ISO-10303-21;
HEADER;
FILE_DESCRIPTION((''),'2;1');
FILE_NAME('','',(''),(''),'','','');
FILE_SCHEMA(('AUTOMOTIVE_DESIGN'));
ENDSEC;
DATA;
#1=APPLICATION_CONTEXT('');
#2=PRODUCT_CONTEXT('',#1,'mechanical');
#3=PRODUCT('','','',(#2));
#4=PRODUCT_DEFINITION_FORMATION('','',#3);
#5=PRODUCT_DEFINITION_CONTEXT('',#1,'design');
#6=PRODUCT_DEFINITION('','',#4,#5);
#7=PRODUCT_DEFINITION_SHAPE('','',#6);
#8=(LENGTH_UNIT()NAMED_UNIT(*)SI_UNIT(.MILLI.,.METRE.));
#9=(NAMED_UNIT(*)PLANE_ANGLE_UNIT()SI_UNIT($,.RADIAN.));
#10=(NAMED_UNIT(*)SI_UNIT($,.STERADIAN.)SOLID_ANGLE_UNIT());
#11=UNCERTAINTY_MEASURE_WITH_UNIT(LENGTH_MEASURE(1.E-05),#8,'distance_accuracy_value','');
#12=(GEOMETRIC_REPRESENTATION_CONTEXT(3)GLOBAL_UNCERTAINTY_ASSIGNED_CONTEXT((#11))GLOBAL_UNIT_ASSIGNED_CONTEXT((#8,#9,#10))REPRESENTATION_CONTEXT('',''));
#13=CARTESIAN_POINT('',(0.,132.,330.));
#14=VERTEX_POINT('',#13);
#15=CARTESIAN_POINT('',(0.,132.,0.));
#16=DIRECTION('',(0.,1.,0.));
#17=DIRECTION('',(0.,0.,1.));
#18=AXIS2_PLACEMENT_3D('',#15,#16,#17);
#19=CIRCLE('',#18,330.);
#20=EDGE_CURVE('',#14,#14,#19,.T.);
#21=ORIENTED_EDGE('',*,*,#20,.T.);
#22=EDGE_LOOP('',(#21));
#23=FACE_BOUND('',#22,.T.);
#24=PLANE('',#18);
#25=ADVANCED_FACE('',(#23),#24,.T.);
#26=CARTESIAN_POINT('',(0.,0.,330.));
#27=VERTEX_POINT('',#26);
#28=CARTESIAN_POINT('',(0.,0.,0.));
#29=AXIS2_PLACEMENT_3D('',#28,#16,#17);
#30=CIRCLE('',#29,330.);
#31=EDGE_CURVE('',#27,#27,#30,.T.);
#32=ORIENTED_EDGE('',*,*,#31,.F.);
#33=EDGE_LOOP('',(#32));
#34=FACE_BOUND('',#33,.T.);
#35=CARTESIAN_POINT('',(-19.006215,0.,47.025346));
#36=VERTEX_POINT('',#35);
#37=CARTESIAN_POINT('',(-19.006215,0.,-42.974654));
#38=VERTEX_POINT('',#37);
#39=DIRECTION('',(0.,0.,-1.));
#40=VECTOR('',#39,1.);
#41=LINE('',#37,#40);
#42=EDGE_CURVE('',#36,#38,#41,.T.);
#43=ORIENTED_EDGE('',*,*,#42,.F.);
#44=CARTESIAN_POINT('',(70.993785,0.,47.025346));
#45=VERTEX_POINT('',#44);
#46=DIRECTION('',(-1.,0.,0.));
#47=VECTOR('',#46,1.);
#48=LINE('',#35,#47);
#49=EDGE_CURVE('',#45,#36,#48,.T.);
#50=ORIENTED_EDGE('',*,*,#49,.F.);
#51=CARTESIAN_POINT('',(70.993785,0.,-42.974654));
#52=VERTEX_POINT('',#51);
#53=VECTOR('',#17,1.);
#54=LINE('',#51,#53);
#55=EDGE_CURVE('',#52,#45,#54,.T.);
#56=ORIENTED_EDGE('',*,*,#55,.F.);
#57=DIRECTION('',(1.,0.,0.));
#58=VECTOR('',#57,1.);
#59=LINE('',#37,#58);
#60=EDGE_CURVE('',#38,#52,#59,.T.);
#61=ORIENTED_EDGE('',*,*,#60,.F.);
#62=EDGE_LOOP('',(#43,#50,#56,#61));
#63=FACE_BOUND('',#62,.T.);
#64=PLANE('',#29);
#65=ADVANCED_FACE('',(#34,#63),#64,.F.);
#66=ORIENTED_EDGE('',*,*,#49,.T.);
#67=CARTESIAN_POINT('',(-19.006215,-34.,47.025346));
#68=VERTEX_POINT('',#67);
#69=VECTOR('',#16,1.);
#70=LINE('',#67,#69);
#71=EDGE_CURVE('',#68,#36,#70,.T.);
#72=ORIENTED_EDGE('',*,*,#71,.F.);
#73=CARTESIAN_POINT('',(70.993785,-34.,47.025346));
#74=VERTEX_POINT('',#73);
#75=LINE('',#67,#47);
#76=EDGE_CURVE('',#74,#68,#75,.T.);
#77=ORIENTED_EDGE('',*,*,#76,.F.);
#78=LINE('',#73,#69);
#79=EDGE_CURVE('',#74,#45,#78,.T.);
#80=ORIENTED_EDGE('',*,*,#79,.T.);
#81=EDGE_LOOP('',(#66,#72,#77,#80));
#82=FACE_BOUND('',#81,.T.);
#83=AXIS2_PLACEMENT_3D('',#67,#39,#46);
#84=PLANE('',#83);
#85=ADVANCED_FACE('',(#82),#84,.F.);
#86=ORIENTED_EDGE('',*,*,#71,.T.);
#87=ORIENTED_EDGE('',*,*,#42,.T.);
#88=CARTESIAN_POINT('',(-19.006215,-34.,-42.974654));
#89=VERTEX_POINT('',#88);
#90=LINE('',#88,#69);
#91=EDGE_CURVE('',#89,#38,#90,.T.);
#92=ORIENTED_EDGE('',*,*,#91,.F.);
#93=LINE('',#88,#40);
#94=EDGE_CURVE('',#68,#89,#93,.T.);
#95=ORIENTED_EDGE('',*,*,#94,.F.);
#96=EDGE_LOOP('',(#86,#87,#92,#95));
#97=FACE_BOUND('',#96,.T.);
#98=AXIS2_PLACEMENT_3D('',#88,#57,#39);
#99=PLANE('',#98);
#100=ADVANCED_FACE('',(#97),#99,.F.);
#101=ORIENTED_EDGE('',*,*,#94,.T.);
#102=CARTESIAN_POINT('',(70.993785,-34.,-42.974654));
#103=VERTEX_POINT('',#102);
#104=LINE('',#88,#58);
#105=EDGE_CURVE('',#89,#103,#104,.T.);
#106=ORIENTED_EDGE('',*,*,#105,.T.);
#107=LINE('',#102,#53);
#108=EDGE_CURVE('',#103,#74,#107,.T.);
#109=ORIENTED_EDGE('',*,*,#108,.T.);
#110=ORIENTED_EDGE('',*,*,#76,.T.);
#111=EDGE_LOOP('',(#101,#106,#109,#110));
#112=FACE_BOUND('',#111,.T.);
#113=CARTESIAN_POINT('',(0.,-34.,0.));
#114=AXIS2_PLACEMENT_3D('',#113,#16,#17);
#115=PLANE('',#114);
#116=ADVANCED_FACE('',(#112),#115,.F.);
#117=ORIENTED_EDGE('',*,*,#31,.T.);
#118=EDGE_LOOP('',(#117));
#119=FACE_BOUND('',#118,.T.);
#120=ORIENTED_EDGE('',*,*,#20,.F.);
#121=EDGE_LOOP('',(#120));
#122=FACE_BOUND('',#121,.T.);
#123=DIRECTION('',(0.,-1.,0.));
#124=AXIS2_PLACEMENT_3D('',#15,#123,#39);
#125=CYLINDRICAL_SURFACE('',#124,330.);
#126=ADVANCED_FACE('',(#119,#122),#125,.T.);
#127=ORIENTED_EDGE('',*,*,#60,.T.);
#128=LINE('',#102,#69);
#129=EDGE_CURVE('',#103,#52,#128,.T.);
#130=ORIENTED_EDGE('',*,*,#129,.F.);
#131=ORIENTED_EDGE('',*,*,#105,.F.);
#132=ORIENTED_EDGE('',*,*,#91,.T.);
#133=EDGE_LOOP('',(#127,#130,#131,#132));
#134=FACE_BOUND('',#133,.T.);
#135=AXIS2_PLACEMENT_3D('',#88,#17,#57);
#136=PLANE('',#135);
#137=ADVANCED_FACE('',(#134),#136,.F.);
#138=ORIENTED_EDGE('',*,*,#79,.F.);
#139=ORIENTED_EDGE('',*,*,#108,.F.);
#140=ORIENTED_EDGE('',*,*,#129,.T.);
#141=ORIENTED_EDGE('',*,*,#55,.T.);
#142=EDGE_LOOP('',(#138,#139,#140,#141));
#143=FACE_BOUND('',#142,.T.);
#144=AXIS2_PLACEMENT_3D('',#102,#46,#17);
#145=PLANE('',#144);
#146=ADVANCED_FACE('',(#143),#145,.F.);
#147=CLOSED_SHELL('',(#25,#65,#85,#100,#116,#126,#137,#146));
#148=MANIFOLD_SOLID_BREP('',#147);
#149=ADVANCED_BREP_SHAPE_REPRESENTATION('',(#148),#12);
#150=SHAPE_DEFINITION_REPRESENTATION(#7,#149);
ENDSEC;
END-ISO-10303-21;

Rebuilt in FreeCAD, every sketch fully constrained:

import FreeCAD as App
import Part
import Sketcher
from FreeCAD import Vector

doc = App.newDocument("Part")
body = doc.addObject("PartDesign::Body", "Body")

sketch1 = body.newObject("Sketcher::SketchObject", "Sketch")
sketch1.AttachmentSupport = (doc.getObject("XZ_Plane"), [""])
sketch1.MapMode = "FlatFace"
sketch1.addGeometry(Part.Circle(Vector(0, 0, 0), Vector(0, 0, 1), 330), False)
sketch1.addConstraint(Sketcher.Constraint("Coincident", 0, 3, -1, 1))
sketch1.addConstraint(Sketcher.Constraint("Diameter", 0, 660.0))
pad1 = body.newObject("PartDesign::Pad", "Pad")
pad1.Profile = sketch1
pad1.Length = 132
pad1.Reversed = True

sketch2 = body.newObject("Sketcher::SketchObject", "Sketch001")
sketch2.AttachmentSupport = (doc.getObject("XZ_Plane"), [""])
sketch2.MapMode = "FlatFace"
sketch2.addGeometry(Part.LineSegment(Vector(-19.006215, 47.025346, 0), Vector(-19.006215, -42.974654, 0)), False)
sketch2.addGeometry(Part.LineSegment(Vector(-19.006215, -42.974654, 0), Vector(70.993785, -42.974654, 0)), False)
sketch2.addGeometry(Part.LineSegment(Vector(70.993785, -42.974654, 0), Vector(70.993785, 47.025346, 0)), False)
sketch2.addGeometry(Part.LineSegment(Vector(70.993785, 47.025346, 0), Vector(-19.006215, 47.025346, 0)), False)
sketch2.addConstraint(Sketcher.Constraint("Coincident", 0, 2, 1, 1))
sketch2.addConstraint(Sketcher.Constraint("Coincident", 1, 2, 2, 1))
sketch2.addConstraint(Sketcher.Constraint("Coincident", 2, 2, 3, 1))
sketch2.addConstraint(Sketcher.Constraint("Coincident", 3, 2, 0, 1))
sketch2.addConstraint(Sketcher.Constraint("Vertical", 0))
sketch2.addConstraint(Sketcher.Constraint("Horizontal", 1))
sketch2.addConstraint(Sketcher.Constraint("Vertical", 2))
sketch2.addConstraint(Sketcher.Constraint("Horizontal", 3))
sketch2.addConstraint(Sketcher.Constraint("Equal", 3, 0))
sketch2.addConstraint(Sketcher.Constraint("DistanceX", 1, 1, 1, 2, 90.0))
sketch2.addConstraint(Sketcher.Constraint("DistanceX", 0, 2, -1, 1, 19.006215))
sketch2.addConstraint(Sketcher.Constraint("DistanceY", 0, 2, -1, 1, 42.974654))
pad2 = body.newObject("PartDesign::Pad", "Pad001")
pad2.Profile = sketch2
pad2.Length = 34

doc.recompute()
